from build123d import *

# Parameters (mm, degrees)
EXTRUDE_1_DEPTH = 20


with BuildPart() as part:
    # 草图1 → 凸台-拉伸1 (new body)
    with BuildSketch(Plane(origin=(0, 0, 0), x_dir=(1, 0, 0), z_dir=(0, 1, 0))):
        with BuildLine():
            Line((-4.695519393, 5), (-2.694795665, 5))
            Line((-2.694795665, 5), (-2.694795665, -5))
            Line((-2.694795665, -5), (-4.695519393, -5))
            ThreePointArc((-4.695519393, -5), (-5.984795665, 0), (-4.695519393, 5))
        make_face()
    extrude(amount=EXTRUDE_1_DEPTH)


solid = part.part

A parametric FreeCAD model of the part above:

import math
import FreeCAD as App
import Part
import Sketcher

V = App.Vector

doc = App.newDocument("Part")
params = doc.addObject("Spreadsheet::Sheet", "Params")
for row, (alias, value) in enumerate([
    ("sketch1_height", "10 mm"),
    ("sketch1_radius", "10.34 mm"),
    ("pad1_length", "20 mm"),
], start=1):
    params.set(f"A{row}", alias)
    params.set(f"B{row}", "=" + value)
    params.setAlias(f"B{row}", alias)

body = doc.addObject("PartDesign::Body", "Body")

# Sketch on XZ plane
sketch1 = doc.addObject("Sketcher::SketchObject", "Sketch")
body.addObject(sketch1)
sketch1.AttachmentSupport = (doc.XZ_Plane, [""])
sketch1.MapMode = "FlatFace"
sketch1.addGeometry([
    Part.LineSegment(V(-2.694796, -5, 0), V(-4.695519, -5, 0)),
    Part.ArcOfCircle(Part.Circle(V(4.355204, 0, 0), V(0, 0, 1), 10.34), math.radians(151.081895), math.radians(208.918105)),
    Part.LineSegment(V(-4.695519, 5, 0), V(-2.694796, 5, 0)),
    Part.LineSegment(V(-2.694796, 5, 0), V(-2.694796, -5, 0)),
], False)
sketch1.addConstraint([
    Sketcher.Constraint("Coincident", 0, 2, 1, 2),
    Sketcher.Constraint("Coincident", 1, 1, 2, 1),
    Sketcher.Constraint("Coincident", 2, 2, 3, 1),
    Sketcher.Constraint("Coincident", 3, 2, 0, 1),
    Sketcher.Constraint("Horizontal", 0),
    Sketcher.Constraint("Horizontal", 2),
    Sketcher.Constraint("Vertical", 3),
    Sketcher.Constraint("Symmetric", 0, 2, 1, 1, -1),
    Sketcher.Constraint("DistanceY", 3, 2, 3, 1, 10.0),
    Sketcher.Constraint("Radius", 1, 10.34),
    Sketcher.Constraint("DistanceX", 2, 2, 1, 3, 7.05),
    Sketcher.Constraint("DistanceX", 0, 2, -1, 1, 4.695519),
])
sketch1.setExpression("Constraints[8]", "Params.sketch1_height")
sketch1.setExpression("Constraints[9]", "Params.sketch1_radius")
pad1 = doc.addObject("PartDesign::Pad", "Pad")
body.addObject(pad1)
pad1.Profile = sketch1
pad1.setExpression("Length", "Params.pad1_length")
pad1.Reversed = True

doc.recompute()
